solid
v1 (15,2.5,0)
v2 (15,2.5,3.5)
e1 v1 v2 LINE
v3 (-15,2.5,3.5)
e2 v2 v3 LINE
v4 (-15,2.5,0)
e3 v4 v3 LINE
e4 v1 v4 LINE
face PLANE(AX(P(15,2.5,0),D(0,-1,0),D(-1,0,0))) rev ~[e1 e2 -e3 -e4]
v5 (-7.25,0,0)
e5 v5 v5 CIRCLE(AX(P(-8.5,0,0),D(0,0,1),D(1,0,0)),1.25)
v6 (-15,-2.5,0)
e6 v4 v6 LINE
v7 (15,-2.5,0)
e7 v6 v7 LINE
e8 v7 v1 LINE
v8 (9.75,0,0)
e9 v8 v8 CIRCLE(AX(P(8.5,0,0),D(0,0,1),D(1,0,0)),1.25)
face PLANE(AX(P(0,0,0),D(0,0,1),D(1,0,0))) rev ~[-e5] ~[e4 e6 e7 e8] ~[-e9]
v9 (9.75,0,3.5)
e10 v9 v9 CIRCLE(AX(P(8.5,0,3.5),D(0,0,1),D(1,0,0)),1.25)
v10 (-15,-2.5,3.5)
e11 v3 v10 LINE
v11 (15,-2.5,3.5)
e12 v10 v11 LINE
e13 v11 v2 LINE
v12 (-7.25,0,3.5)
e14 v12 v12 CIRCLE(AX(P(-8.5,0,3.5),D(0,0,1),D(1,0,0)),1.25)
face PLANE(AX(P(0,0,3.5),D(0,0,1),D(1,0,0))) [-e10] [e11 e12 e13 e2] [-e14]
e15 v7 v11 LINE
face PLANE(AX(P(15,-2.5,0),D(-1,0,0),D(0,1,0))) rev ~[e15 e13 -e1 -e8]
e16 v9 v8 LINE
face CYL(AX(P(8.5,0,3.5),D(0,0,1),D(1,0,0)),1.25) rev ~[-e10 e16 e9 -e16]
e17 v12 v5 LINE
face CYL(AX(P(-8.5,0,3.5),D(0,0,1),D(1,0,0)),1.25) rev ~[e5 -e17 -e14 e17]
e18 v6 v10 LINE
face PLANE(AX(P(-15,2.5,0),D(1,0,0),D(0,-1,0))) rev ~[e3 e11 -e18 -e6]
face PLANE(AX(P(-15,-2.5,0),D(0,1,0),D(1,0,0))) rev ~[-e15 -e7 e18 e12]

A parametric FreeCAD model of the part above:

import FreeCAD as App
import Part
import Sketcher

V = App.Vector
Q = App.Units.Quantity

doc = App.newDocument("Part")
body = doc.addObject("PartDesign::Body", "Body")

sketch1 = body.newObject("Sketcher::SketchObject", "Sketch")
sketch1.AttachmentSupport = (doc.getObject("XY_Plane"), [""])
sketch1.MapMode = "FlatFace"
sketch1.addGeometry(Part.LineSegment(V(-15, 2.5, 0), V(-15, -2.5, 0)), False)
sketch1.addGeometry(Part.LineSegment(V(-15, -2.5, 0), V(15, -2.5, 0)), False)
sketch1.addGeometry(Part.LineSegment(V(15, -2.5, 0), V(15, 2.5, 0)), False)
sketch1.addGeometry(Part.LineSegment(V(15, 2.5, 0), V(-15, 2.5, 0)), False)
sketch1.addConstraint(Sketcher.Constraint("Coincident", 0, 2, 1, 1))
sketch1.addConstraint(Sketcher.Constraint("Coincident", 1, 2, 2, 1))
sketch1.addConstraint(Sketcher.Constraint("Coincident", 2, 2, 3, 1))
sketch1.addConstraint(Sketcher.Constraint("Coincident", 3, 2, 0, 1))
sketch1.addConstraint(Sketcher.Constraint("Vertical", 0))
sketch1.addConstraint(Sketcher.Constraint("Horizontal", 1))
sketch1.addConstraint(Sketcher.Constraint("Vertical", 2))
sketch1.addConstraint(Sketcher.Constraint("Horizontal", 3))
sketch1.addConstraint(Sketcher.Constraint("Symmetric", 0, 2, 2, 2, -1, 1))
sketch1.addConstraint(Sketcher.Constraint("DistanceX", 0, 2, -1, 1, Q("15 mm")))
sketch1.addConstraint(Sketcher.Constraint("DistanceY", 0, 2, 0, 1, Q("5 mm")))
pad1 = body.newObject("PartDesign::Pad", "Pad")
pad1.Profile = sketch1
pad1.Length = 3.5

sketch2 = body.newObject("Sketcher::SketchObject", "Sketch001")
sketch2.AttachmentSupport = (doc.getObject("XY_Plane"), [""])
sketch2.MapMode = "FlatFace"
sketch2.AttachmentOffset = App.Placement(V(0, 0, 3.5), App.Rotation())
sketch2.addGeometry(Part.Circle(V(-8.5, 0, 0), V(0, 0, 1), 1.25), False)
sketch2.addGeometry(Part.Circle(V(8.5, 0, 0), V(0, 0, 1), 1.25), False)
sketch2.addConstraint(Sketcher.Constraint("Equal", 0, 1))
sketch2.addConstraint(Sketcher.Constraint("Symmetric", 0, 3, 1, 3, -1, 1))
sketch2.addConstraint(Sketcher.Constraint("PointOnObject", 0, 3, -1))
sketch2.addConstraint(Sketcher.Constraint("Diameter", 0, Q("2.5 mm")))
sketch2.addConstraint(Sketcher.Constraint("DistanceX", 0, 3, 1, 3, Q("17 mm")))
pocket1 = body.newObject("PartDesign::Pocket", "Pocket")
pocket1.Profile = sketch2
pocket1.Type = "ThroughAll"

doc.recompute()
